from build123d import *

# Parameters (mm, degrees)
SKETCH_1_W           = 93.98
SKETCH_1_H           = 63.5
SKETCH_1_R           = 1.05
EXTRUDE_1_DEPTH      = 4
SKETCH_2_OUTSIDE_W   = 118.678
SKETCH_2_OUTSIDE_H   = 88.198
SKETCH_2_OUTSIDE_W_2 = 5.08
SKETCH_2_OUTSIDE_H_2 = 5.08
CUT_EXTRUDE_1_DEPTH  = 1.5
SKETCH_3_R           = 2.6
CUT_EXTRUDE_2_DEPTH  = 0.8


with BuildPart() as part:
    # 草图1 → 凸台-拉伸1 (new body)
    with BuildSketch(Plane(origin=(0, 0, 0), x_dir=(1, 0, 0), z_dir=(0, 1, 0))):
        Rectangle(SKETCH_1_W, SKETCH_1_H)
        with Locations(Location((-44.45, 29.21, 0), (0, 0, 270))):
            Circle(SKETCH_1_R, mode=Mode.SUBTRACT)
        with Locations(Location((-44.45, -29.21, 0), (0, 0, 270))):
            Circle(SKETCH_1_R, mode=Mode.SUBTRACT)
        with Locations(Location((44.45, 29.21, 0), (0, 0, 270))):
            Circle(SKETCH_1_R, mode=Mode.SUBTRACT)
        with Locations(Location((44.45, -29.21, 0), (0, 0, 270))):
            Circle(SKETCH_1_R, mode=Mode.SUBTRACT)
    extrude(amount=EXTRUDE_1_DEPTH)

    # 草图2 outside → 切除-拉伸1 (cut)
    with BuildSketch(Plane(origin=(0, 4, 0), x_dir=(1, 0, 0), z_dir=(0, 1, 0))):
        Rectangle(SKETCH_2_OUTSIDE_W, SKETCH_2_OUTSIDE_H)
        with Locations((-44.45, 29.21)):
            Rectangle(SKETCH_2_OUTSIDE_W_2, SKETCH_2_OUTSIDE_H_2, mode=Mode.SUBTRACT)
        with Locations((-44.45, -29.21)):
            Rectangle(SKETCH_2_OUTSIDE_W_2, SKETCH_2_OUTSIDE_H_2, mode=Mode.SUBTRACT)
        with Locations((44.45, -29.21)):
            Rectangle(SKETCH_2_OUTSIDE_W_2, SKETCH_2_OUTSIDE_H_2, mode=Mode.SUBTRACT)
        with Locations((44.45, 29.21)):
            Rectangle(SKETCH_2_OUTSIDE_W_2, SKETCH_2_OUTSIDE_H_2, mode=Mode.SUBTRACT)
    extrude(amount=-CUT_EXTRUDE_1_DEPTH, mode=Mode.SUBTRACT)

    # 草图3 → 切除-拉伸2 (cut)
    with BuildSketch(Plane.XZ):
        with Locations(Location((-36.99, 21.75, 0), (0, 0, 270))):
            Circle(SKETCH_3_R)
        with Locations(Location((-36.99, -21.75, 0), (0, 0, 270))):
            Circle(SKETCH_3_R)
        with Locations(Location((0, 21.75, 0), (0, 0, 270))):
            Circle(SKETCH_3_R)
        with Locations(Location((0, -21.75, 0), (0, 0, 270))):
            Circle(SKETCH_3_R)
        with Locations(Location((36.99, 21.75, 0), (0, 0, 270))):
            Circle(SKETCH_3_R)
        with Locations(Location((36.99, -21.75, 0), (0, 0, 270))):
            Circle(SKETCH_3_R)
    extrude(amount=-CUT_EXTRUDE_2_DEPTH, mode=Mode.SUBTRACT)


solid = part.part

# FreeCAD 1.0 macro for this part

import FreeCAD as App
import Part
import Sketcher
from FreeCAD import Vector
Q = App.Units.Quantity

doc = App.newDocument("Part")
params = doc.addObject("Spreadsheet::Sheet", "Params")
for row, (alias, value) in enumerate([
    ("sketch1_diameter", "2.1 mm"),
    ("sketch1_height", "63.5 mm"),
    ("sketch1_width", "93.98 mm"),
    ("pad1_length", "4 mm"),
    ("sketch2_width", "5.08 mm"),
    ("pocket1_length", "1.5 mm"),
    ("sketch3_diameter", "5.2 mm"),
    ("pocket2_length", "0.8 mm"),
], start=1):
    params.set(f"A{row}", alias)
    params.set(f"B{row}", "=" + value)
    params.setAlias(f"B{row}", alias)

body = doc.addObject("PartDesign::Body", "Body")

sketch1 = body.newObject("Sketcher::SketchObject", "Sketch")
sketch1.AttachmentSupport = (doc.getObject("XZ_Plane"), [""])
sketch1.MapMode = "FlatFace"
sketch1.addGeometry(Part.LineSegment(Vector(-47, -31.8, 0), Vector(-47, 31.8, 0)), False)
sketch1.addGeometry(Part.LineSegment(Vector(-47, 31.8, 0), Vector(47, 31.8, 0)), False)
sketch1.addGeometry(Part.LineSegment(Vector(47, 31.8, 0), Vector(47, -31.8, 0)), False)
sketch1.addGeometry(Part.LineSegment(Vector(47, -31.8, 0), Vector(-47, -31.8, 0)), False)
sketch1.addGeometry(Part.Circle(Vector(-44.5, 29.2, 0), Vector(0, 0, 1), 1.1), False)
sketch1.addGeometry(Part.Circle(Vector(44.5, 29.2, 0), Vector(0, 0, 1), 1.1), False)
sketch1.addGeometry(Part.Circle(Vector(-44.5, -29.2, 0), Vector(0, 0, 1), 1.1), False)
sketch1.addGeometry(Part.Circle(Vector(44.5, -29.2, 0), Vector(0, 0, 1), 1.1), False)
sketch1.addConstraint(Sketcher.Constraint("Coincident", 0, 2, 1, 1))
sketch1.addConstraint(Sketcher.Constraint("Coincident", 1, 2, 2, 1))
sketch1.addConstraint(Sketcher.Constraint("Coincident", 2, 2, 3, 1))
sketch1.addConstraint(Sketcher.Constraint("Coincident", 3, 2, 0, 1))
sketch1.addConstraint(Sketcher.Constraint("Vertical", 0))
sketch1.addConstraint(Sketcher.Constraint("Horizontal", 1))
sketch1.addConstraint(Sketcher.Constraint("Vertical", 2))
sketch1.addConstraint(Sketcher.Constraint("Horizontal", 3))
sketch1.addConstraint(Sketcher.Constraint("Equal", 4, 5))
sketch1.addConstraint(Sketcher.Constraint("Equal", 5, 6))
sketch1.addConstraint(Sketcher.Constraint("Equal", 6, 7))
sketch1.addConstraint(Sketcher.Constraint("Symmetric", 5, 3, 6, 3, -1, 1))
sketch1.addConstraint(Sketcher.Constraint("Symmetric", 4, 3, 7, 3, -1, 1))
sketch1.addConstraint(Sketcher.Constraint("Symmetric", 0, 2, 2, 2, -1, 1))
sketch1.addConstraint(Sketcher.Constraint("Symmetric", 4, 3, 5, 3, -2))
sketch1.addConstraint(Sketcher.Constraint("Diameter", 4, Q("2.1 mm")))
sketch1.addConstraint(Sketcher.Constraint("DistanceY", 0, 1, 0, 2, Q("63.5 mm")))
sketch1.addConstraint(Sketcher.Constraint("DistanceX", 1, 1, 1, 2, Q("93.98 mm")))
sketch1.addConstraint(Sketcher.Constraint("DistanceX", 4, 3, 5, 3, Q("88.9 mm")))
sketch1.addConstraint(Sketcher.Constraint("DistanceY", -1, 1, 4, 3, Q("29.21 mm")))
sketch1.setExpression("Constraints[15]", "Params.sketch1_diameter")
sketch1.setExpression("Constraints[16]", "Params.sketch1_height")
sketch1.setExpression("Constraints[17]", "Params.sketch1_width")
pad1 = body.newObject("PartDesign::Pad", "Pad")
pad1.Profile = sketch1
pad1.setExpression("Length", "Params.pad1_length")
pad1.Reversed = True

sketch2 = body.newObject("Sketcher::SketchObject", "Sketch001")
sketch2.AttachmentSupport = (doc.getObject("XZ_Plane"), [""])
sketch2.MapMode = "FlatFace"
sketch2.AttachmentOffset = App.Placement(Vector(0, 0, -4), App.Rotation())
sketch2.addGeometry(Part.LineSegment(Vector(-59, -44, 0), Vector(-59, 44, 0)), False)
sketch2.addGeometry(Part.LineSegment(Vector(-59, 44, 0), Vector(59, 44, 0)), False)
sketch2.addGeometry(Part.LineSegment(Vector(59, 44, 0), Vector(59, -44, 0)), False)
sketch2.addGeometry(Part.LineSegment(Vector(59, -44, 0), Vector(-59, -44, 0)), False)
sketch2.addGeometry(Part.LineSegment(Vector(-42, 32, 0), Vector(-47, 32, 0)), False)
sketch2.addGeometry(Part.LineSegment(Vector(-47, 32, 0), Vector(-47, 27, 0)), False)
sketch2.addGeometry(Part.LineSegment(Vector(-47, 27, 0), Vector(-42, 27, 0)), False)
sketch2.addGeometry(Part.LineSegment(Vector(-42, 27, 0), Vector(-42, 32, 0)), False)
sketch2.addGeometry(Part.LineSegment(Vector(47, 32, 0), Vector(42, 32, 0)), False)
sketch2.addGeometry(Part.LineSegment(Vector(42, 32, 0), Vector(42, 27, 0)), False)
sketch2.addGeometry(Part.LineSegment(Vector(42, 27, 0), Vector(47, 27, 0)), False)
sketch2.addGeometry(Part.LineSegment(Vector(47, 27, 0), Vector(47, 32, 0)), False)
sketch2.addGeometry(Part.LineSegment(Vector(-42, -27, 0), Vector(-47, -27, 0)), False)
sketch2.addGeometry(Part.LineSegment(Vector(-47, -27, 0), Vector(-47, -32, 0)), False)
sketch2.addGeometry(Part.LineSegment(Vector(-47, -32, 0), Vector(-42, -32, 0)), False)
sketch2.addGeometry(Part.LineSegment(Vector(-42, -32, 0), Vector(-42, -27, 0)), False)
sketch2.addGeometry(Part.LineSegment(Vector(47, -27, 0), Vector(42, -27, 0)), False)
sketch2.addGeometry(Part.LineSegment(Vector(42, -27, 0), Vector(42, -32, 0)), False)
sketch2.addGeometry(Part.LineSegment(Vector(42, -32, 0), Vector(47, -32, 0)), False)
sketch2.addGeometry(Part.LineSegment(Vector(47, -32, 0), Vector(47, -27, 0)), False)
sketch2.addConstraint(Sketcher.Constraint("Coincident", 0, 2, 1, 1))
sketch2.addConstraint(Sketcher.Constraint("Coincident", 1, 2, 2, 1))
sketch2.addConstraint(Sketcher.Constraint("Coincident", 2, 2, 3, 1))
sketch2.addConstraint(Sketcher.Constraint("Coincident", 3, 2, 0, 1))
sketch2.addConstraint(Sketcher.Constraint("Coincident", 4, 2, 5, 1))
sketch2.addConstraint(Sketcher.Constraint("Coincident", 5, 2, 6, 1))
sketch2.addConstraint(Sketcher.Constraint("Coincident", 6, 2, 7, 1))
sketch2.addConstraint(Sketcher.Constraint("Coincident", 7, 2, 4, 1))
sketch2.addConstraint(Sketcher.Constraint("Coincident", 8, 2, 9, 1))
sketch2.addConstraint(Sketcher.Constraint("Coincident", 9, 2, 10, 1))
sketch2.addConstraint(Sketcher.Constraint("Coincident", 10, 2, 11, 1))
sketch2.addConstraint(Sketcher.Constraint("Coincident", 11, 2, 8, 1))
sketch2.addConstraint(Sketcher.Constraint("Coincident", 12, 2, 13, 1))
sketch2.addConstraint(Sketcher.Constraint("Coincident", 13, 2, 14, 1))
sketch2.addConstraint(Sketcher.Constraint("Coincident", 14, 2, 15, 1))
sketch2.addConstraint(Sketcher.Constraint("Coincident", 15, 2, 12, 1))
sketch2.addConstraint(Sketcher.Constraint("Coincident", 16, 2, 17, 1))
sketch2.addConstraint(Sketcher.Constraint("Coincident", 17, 2, 18, 1))
sketch2.addConstraint(Sketcher.Constraint("Coincident", 18, 2, 19, 1))
sketch2.addConstraint(Sketcher.Constraint("Coincident", 19, 2, 16, 1))
sketch2.addConstraint(Sketcher.Constraint("Vertical", 0))
sketch2.addConstraint(Sketcher.Constraint("Horizontal", 1))
sketch2.addConstraint(Sketcher.Constraint("Vertical", 2))
sketch2.addConstraint(Sketcher.Constraint("Horizontal", 3))
sketch2.addConstraint(Sketcher.Constraint("Horizontal", 4))
sketch2.addConstraint(Sketcher.Constraint("Vertical", 5))
sketch2.addConstraint(Sketcher.Constraint("Horizontal", 6))
sketch2.addConstraint(Sketcher.Constraint("Vertical", 7))
sketch2.addConstraint(Sketcher.Constraint("Horizontal", 8))
sketch2.addConstraint(Sketcher.Constraint("Vertical", 9))
sketch2.addConstraint(Sketcher.Constraint("Horizontal", 10))
sketch2.addConstraint(Sketcher.Constraint("Vertical", 11))
sketch2.addConstraint(Sketcher.Constraint("Horizontal", 12))
sketch2.addConstraint(Sketcher.Constraint("Vertical", 13))
sketch2.addConstraint(Sketcher.Constraint("Horizontal", 14))
sketch2.addConstraint(Sketcher.Constraint("Vertical", 15))
sketch2.addConstraint(Sketcher.Constraint("Horizontal", 16))
sketch2.addConstraint(Sketcher.Constraint("Vertical", 17))
sketch2.addConstraint(Sketcher.Constraint("Horizontal", 18))
sketch2.addConstraint(Sketcher.Constraint("Vertical", 19))
sketch2.addConstraint(Sketcher.Constraint("Symmetric", 0, 2, 2, 2, -1, 1))
sketch2.addConstraint(Sketcher.Constraint("Symmetric", 10, 2, 12, 2, -1, 1))
sketch2.addConstraint(Sketcher.Constraint("Symmetric", 8, 2, 14, 2, -1, 1))
sketch2.addConstraint(Sketcher.Constraint("Symmetric", 6, 2, 16, 2, -1, 1))
sketch2.addConstraint(Sketcher.Constraint("Symmetric", 4, 2, 18, 2, -1, 1))
sketch2.addConstraint(Sketcher.Constraint("Symmetric", 7, 2, 8, 2, -2))
sketch2.addConstraint(Sketcher.Constraint("Symmetric", 5, 2, 10, 2, -2))
sketch2.addConstraint(Sketcher.Constraint("Equal", 18, 5))
sketch2.addConstraint(Sketcher.Constraint("DistanceX", 4, 2, 4, 1, Q("5.08 mm")))
sketch2.addConstraint(Sketcher.Constraint("DistanceX", 4, 2, 8, 2, Q("88.9 mm")))
sketch2.addConstraint(Sketcher.Constraint("DistanceY", 13, 2, 4, 2, Q("63.5 mm")))
sketch2.addConstraint(Sketcher.Constraint("DistanceX", 1, 1, 1, 2, Q("118.678 mm")))
sketch2.addConstraint(Sketcher.Constraint("DistanceY", 0, 1, 0, 2, Q("88.198 mm")))
sketch2.setExpression("Constraints[48]", "Params.sketch2_width")
pocket1 = body.newObject("PartDesign::Pocket", "Pocket")
pocket1.Profile = sketch2
pocket1.setExpression("Length", "Params.pocket1_length")
pocket1.Reversed = True

sketch3 = body.newObject("Sketcher::SketchObject", "Sketch002")
sketch3.AttachmentSupport = (doc.getObject("XZ_Plane"), [""])
sketch3.MapMode = "FlatFace"
sketch3.addGeometry(Part.Circle(Vector(-37, 21.8, 0), Vector(0, 0, 1), 2.6), False)
sketch3.addGeometry(Part.Circle(Vector(-37, -21.8, 0), Vector(0, 0, 1), 2.6), False)
sketch3.addGeometry(Part.Circle(Vector(0, 21.8, 0), Vector(0, 0, 1), 2.6), False)
sketch3.addGeometry(Part.Circle(Vector(0, -21.8, 0), Vector(0, 0, 1), 2.6), False)
sketch3.addGeometry(Part.Circle(Vector(37, 21.8, 0), Vector(0, 0, 1), 2.6), False)
sketch3.addGeometry(Part.Circle(Vector(37, -21.8, 0), Vector(0, 0, 1), 2.6), False)
sketch3.addConstraint(Sketcher.Constraint("Equal", 0, 1))
sketch3.addConstraint(Sketcher.Constraint("Equal", 1, 2))
sketch3.addConstraint(Sketcher.Constraint("Equal", 2, 3))
sketch3.addConstraint(Sketcher.Constraint("Equal", 3, 4))
sketch3.addConstraint(Sketcher.Constraint("Equal", 4, 5))
sketch3.addConstraint(Sketcher.Constraint("Symmetric", 2, 3, 3, 3, -1, 1))
sketch3.addConstraint(Sketcher.Constraint("Symmetric", 1, 3, 4, 3, -1, 1))
sketch3.addConstraint(Sketcher.Constraint("Symmetric", 0, 3, 5, 3, -1, 1))
sketch3.addConstraint(Sketcher.Constraint("Symmetric", 0, 3, 4, 3, -2))
sketch3.addConstraint(Sketcher.Constraint("PointOnObject", 2, 3, -2))
sketch3.addConstraint(Sketcher.Constraint("Horizontal", 0, 3, 2, 3))
sketch3.addConstraint(Sketcher.Constraint("Diameter", 0, Q("5.2 mm")))
sketch3.addConstraint(Sketcher.Constraint("DistanceY", 1, 3, 0, 3, Q("43.5 mm")))
sketch3.addConstraint(Sketcher.Constraint("DistanceX", 0, 3, -1, 1, Q("36.99 mm")))
sketch3.setExpression("Constraints[11]", "Params.sketch3_diameter")
pocket2 = body.newObject("PartDesign::Pocket", "Pocket001")
pocket2.Profile = sketch3
pocket2.setExpression("Length", "Params.pocket2_length")

doc.recompute()
